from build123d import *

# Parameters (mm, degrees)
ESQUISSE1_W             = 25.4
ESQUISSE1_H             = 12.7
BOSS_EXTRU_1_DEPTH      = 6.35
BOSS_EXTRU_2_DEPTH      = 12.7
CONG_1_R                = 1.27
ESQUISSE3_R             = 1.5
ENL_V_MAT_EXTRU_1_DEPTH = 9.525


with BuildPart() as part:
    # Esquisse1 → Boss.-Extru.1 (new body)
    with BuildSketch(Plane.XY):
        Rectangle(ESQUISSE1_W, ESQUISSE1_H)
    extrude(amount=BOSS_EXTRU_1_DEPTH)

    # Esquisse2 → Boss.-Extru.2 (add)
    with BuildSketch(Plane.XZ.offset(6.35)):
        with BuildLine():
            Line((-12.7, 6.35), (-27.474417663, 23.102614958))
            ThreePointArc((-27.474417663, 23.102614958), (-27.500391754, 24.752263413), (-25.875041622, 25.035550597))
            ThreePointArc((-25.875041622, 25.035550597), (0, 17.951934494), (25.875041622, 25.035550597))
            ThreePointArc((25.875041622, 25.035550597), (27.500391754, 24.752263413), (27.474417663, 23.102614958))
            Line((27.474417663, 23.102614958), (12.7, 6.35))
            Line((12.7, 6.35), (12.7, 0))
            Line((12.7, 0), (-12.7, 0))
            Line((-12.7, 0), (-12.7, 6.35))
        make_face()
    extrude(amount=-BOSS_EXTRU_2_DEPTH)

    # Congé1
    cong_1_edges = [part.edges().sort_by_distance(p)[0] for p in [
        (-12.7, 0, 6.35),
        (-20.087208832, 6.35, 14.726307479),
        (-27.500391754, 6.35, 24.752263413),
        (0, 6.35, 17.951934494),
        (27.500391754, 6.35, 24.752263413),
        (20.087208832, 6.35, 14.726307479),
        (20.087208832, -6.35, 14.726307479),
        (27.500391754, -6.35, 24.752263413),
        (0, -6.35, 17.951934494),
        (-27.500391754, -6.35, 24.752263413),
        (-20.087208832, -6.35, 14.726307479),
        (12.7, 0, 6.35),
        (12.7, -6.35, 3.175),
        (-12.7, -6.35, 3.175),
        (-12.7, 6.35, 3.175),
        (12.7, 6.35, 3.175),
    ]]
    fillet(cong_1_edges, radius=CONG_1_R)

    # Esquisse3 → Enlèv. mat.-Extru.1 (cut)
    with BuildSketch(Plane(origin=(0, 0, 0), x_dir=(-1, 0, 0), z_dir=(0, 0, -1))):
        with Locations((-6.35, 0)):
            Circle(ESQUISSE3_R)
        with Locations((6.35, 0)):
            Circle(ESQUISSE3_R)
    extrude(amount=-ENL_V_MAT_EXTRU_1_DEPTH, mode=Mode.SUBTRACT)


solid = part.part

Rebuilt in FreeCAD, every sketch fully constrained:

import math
import FreeCAD as App
import Part
import Sketcher
Q = App.Units.Quantity


def edges_at(feature, points):
    """Names of the edges that pass closest to the given points."""
    edges = feature.Shape.Edges
    near = lambda p: min(range(len(edges)), key=lambda i: edges[i].distToShape(Part.Vertex(*p))[0])
    return sorted({f"Edge{near(p) + 1}" for p in points})


def add_polygon(sketch, points):
    """Adds a closed chain of lines whose ends are joined by coincident constraints."""
    first, n = sketch.GeometryCount, len(points)
    for a, b in zip(points, points[1:] + points[:1]):
        sketch.addGeometry(Part.LineSegment(App.Vector(*a, 0), App.Vector(*b, 0)), False)
    for i in range(n):
        sketch.addConstraint(Sketcher.Constraint("Coincident", first + i, 2, first + (i + 1) % n, 1))

doc = App.newDocument("Part")
params = doc.addObject("Spreadsheet::Sheet", "Params")
for row, (alias, value) in enumerate([
    ("sketch1_width", "1 in"),
    ("sketch1_height", "0.5 in"),
    ("pad1_length", "0.25 in"),
    ("sketch2_radius", "2 in"),
    ("sketch2_width", "1 in"),
    ("sketch2_radius2", "0.05 in"),
    ("sketch2_radius3", "0.05 in"),
    ("sketch2_height", "0.25 in"),
    ("pad2_length", "0.5 in"),
    ("fillet_radius", "0.05 in"),
    ("pocket1_length", "0.375 in"),
], start=1):
    params.set(f"A{row}", alias)
    params.set(f"B{row}", "=" + value)
    params.setAlias(f"B{row}", alias)

body = doc.addObject("PartDesign::Body", "Body")

# Sketch on XY plane
sketch1 = body.newObject("Sketcher::SketchObject", "Sketch")
sketch1.AttachmentSupport = (doc.getObject("XY_Plane"), [""])
sketch1.MapMode = "FlatFace"
add_polygon(sketch1, [(-13, 6), (-13, -6), (13, -6), (13, 6)])  # lines 0-3
sketch1.addConstraint([
    Sketcher.Constraint("Vertical", 0),
    Sketcher.Constraint("Horizontal", 1),
    Sketcher.Constraint("Vertical", 2),
    Sketcher.Constraint("Horizontal", 3),
    Sketcher.Constraint("Symmetric", 0, 2, 2, 2, -1, 1),
    Sketcher.Constraint("DistanceX", 1, 1, 1, 2, Q("1 in")),
    Sketcher.Constraint("DistanceY", 0, 2, 0, 1, Q("0.5 in")),
])
sketch1.setExpression("Constraints[9]", "Params.sketch1_width")
sketch1.setExpression("Constraints[10]", "Params.sketch1_height")
pad1 = body.newObject("PartDesign::Pad", "Pad")
pad1.Profile = sketch1
pad1.setExpression("Length", "Params.pad1_length")

# Sketch on XZ plane
sketch2 = body.newObject("Sketcher::SketchObject", "Sketch001")
sketch2.AttachmentSupport = (doc.getObject("XZ_Plane"), [""])
sketch2.MapMode = "FlatFace"
sketch2.AttachmentOffset = App.Placement(App.Vector(0, 0, 0.25 * 25.4), App.Rotation())
sketch2.addGeometry([
    Part.LineSegment(App.Vector(-27.474418, 23.102615, 0), App.Vector(-12.7, 6.35, 0)),  # 0
    Part.LineSegment(App.Vector(-12.7, 6.35, 0), App.Vector(-12.7, 0, 0)),  # 1
    Part.LineSegment(App.Vector(-12.7, 0, 0), App.Vector(12.7, 0, 0)),  # 2
    Part.LineSegment(App.Vector(12.7, 0, 0), App.Vector(12.7, 6.35, 0)),  # 3
    Part.LineSegment(App.Vector(12.7, 6.35, 0), App.Vector(27.474418, 23.102615, 0)),  # 4
    Part.ArcOfCircle(Part.Circle(App.Vector(26.521918, 23.942641, 0), App.Vector(0, 0, 1), 1.27), math.radians(-41.409622), math.radians(120.620624)),  # 5
    Part.ArcOfCircle(Part.Circle(App.Vector(0, 68.751934, 0), App.Vector(0, 0, 1), 50.8), math.radians(-120.620624), math.radians(-59.379376)),  # 6
    Part.ArcOfCircle(Part.Circle(App.Vector(-26.521918, 23.942641, 0), App.Vector(0, 0, 1), 1.27), math.radians(59.379376), math.radians(221.409622)),  # 7
], False)
sketch2.addConstraint([
    Sketcher.Constraint("Coincident", 0, 2, 1, 1),
    Sketcher.Constraint("Coincident", 1, 2, 2, 1),
    Sketcher.Constraint("Coincident", 2, 2, 3, 1),
    Sketcher.Constraint("Coincident", 3, 2, 4, 1),
    Sketcher.Constraint("Coincident", 4, 2, 5, 1),
    Sketcher.Constraint("Coincident", 5, 2, 6, 2),
    Sketcher.Constraint("Coincident", 6, 1, 7, 1),
    Sketcher.Constraint("Coincident", 7, 2, 0, 1),
    Sketcher.Constraint("Vertical", 1),
    Sketcher.Constraint("Horizontal", 2),
    Sketcher.Constraint("Vertical", 3),
    Sketcher.Constraint("PointOnObject", 6, 3, -2),
    Sketcher.Constraint("PointOnObject", 1, 2, -1),
    Sketcher.Constraint("Radius", 6, Q("2 in")),
    Sketcher.Constraint("DistanceX", 2, 1, 2, 2, Q("1 in")),
    Sketcher.Constraint("Radius", 5, Q("0.05 in")),
    Sketcher.Constraint("Radius", 7, Q("0.05 in")),
    Sketcher.Constraint("DistanceY", 1, 2, 1, 1, Q("0.25 in")),
    Sketcher.Constraint("DistanceY", 3, 1, 3, 2, Q("0.25 in")),
    Sketcher.Constraint("DistanceX", 0, 2, -1, 1, Q("0.5 in")),
    Sketcher.Constraint("DistanceX", 5, 3, 4, 2, Q("0.0375 in")),
    Sketcher.Constraint("DistanceY", 4, 2, 5, 2, Q("0.0760998 in")),
    Sketcher.Constraint("DistanceX", 7, 2, 7, 3, Q("0.0375 in")),
    Sketcher.Constraint("DistanceY", 7, 2, 6, 1, Q("0.0760998 in")),
    Sketcher.Constraint("Distance", 0, Q("22.33682 mm")),
    Sketcher.Constraint("Distance", 4, Q("22.33682 mm")),
    Sketcher.Constraint("DistanceY", -1, 1, 5, 3, Q("23.942641 mm")),
])
sketch2.setExpression("Constraints[13]", "Params.sketch2_radius")
sketch2.setExpression("Constraints[14]", "Params.sketch2_width")
sketch2.setExpression("Constraints[15]", "Params.sketch2_radius2")
sketch2.setExpression("Constraints[16]", "Params.sketch2_radius3")
sketch2.setExpression("Constraints[17]", "Params.sketch2_height")
pad2 = body.newObject("PartDesign::Pad", "Pad001")
pad2.Profile = sketch2
pad2.setExpression("Length", "Params.pad2_length")
pad2.Reversed = True
doc.recompute()

fillet = body.newObject("PartDesign::Fillet", "Fillet")
fillet.Base = (pad2, edges_at(pad2, [
    (-12.7, 0, 6.35),
    (-20.087, 6.35, 14.726),
    (-27.5, 6.35, 24.752),
    (0, 6.35, 17.952),
    (27.5, 6.35, 24.752),
    (20.087, 6.35, 14.726),
    (20.087, -6.35, 14.726),
    (27.5, -6.35, 24.752),
    (0, -6.35, 17.952),
    (-27.5, -6.35, 24.752),
    (-20.087, -6.35, 14.726),
    (12.7, 0, 6.35),
    (12.7, -6.35, 3.175),
    (-12.7, -6.35, 3.175),
    (-12.7, 6.35, 3.175),
    (12.7, 6.35, 3.175),
]))
fillet.setExpression("Radius", "Params.fillet_radius")

# Sketch on XY plane
sketch3 = body.newObject("Sketcher::SketchObject", "Sketch002")
sketch3.AttachmentSupport = (doc.getObject("XY_Plane"), [""])
sketch3.MapMode = "FlatFace"
sketch3.addGeometry([
    Part.Circle(App.Vector(6.3, 0, 0), App.Vector(0, 0, 1), 1.5),
    Part.Circle(App.Vector(-6.3, 0, 0), App.Vector(0, 0, 1), 1.5),
], False)
sketch3.addConstraint([
    Sketcher.Constraint("Equal", 0, 1),
    Sketcher.Constraint("Symmetric", 0, 3, 1, 3, -1, 1),
    Sketcher.Constraint("PointOnObject", 0, 3, -1),
    Sketcher.Constraint("DistanceX", 1, 3, 0, 3, Q("0.5 in")),
    Sketcher.Constraint("Diameter", 0, Q("3 mm")),
])
pocket1 = body.newObject("PartDesign::Pocket", "Pocket")
pocket1.Profile = sketch3
pocket1.setExpression("Length", "Params.pocket1_length")
pocket1.Reversed = True

doc.recompute()
